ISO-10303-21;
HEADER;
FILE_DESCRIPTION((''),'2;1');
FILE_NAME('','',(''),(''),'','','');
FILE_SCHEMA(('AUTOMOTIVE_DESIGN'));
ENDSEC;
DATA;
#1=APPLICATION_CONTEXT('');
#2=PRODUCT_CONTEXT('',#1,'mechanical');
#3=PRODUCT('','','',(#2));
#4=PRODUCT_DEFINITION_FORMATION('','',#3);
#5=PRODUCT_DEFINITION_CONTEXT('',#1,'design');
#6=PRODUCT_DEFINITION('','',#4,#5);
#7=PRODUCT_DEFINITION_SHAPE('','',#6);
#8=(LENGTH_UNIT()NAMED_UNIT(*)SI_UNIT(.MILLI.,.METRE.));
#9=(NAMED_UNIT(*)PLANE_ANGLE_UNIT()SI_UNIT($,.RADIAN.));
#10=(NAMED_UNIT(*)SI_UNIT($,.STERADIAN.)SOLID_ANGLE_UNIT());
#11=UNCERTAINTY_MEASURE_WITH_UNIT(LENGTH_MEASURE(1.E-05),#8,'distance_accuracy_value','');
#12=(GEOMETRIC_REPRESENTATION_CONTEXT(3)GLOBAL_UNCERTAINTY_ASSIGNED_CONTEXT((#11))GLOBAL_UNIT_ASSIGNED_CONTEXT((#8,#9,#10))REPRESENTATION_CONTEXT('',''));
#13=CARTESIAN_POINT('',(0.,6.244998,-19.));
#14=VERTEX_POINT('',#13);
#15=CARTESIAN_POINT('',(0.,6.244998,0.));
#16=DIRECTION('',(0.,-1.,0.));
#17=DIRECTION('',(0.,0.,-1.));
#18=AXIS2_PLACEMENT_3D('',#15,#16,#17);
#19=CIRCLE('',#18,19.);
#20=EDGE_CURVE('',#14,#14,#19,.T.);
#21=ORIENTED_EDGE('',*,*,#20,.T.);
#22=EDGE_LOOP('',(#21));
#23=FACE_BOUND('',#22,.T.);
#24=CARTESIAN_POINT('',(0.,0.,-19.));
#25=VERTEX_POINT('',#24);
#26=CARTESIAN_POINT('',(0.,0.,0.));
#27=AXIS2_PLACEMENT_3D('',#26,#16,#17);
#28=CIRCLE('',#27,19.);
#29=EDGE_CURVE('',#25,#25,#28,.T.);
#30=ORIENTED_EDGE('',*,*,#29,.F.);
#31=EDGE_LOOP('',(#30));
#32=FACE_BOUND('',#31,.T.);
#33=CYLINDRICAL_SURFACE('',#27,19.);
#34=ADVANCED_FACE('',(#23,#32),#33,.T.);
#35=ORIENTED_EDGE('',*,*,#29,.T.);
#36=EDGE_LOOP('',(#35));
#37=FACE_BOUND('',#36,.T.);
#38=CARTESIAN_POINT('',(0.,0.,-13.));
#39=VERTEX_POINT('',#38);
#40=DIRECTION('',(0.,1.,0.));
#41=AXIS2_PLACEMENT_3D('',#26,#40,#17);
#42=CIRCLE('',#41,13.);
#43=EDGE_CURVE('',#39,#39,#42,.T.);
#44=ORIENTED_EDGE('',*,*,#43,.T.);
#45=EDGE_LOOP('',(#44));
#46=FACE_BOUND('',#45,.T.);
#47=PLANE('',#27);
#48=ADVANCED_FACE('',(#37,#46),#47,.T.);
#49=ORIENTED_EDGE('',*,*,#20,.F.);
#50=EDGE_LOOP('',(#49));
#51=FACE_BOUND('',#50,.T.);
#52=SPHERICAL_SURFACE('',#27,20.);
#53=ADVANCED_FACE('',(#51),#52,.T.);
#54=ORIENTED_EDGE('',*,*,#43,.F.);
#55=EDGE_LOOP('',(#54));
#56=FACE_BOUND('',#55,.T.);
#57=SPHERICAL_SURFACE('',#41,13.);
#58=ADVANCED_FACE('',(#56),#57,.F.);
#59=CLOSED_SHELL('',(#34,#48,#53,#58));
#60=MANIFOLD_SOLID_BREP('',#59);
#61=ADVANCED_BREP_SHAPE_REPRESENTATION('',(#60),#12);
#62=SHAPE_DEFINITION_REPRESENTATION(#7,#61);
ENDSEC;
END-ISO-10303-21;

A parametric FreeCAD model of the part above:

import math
import FreeCAD as App
import Part
import Sketcher

doc = App.newDocument("Part")
body = doc.addObject("PartDesign::Body", "Body")

sketch1 = body.newObject("Sketcher::SketchObject", "Sketch")
sketch1.AttachmentSupport = (doc.getObject("XZ_Plane"), [""])
sketch1.MapMode = "FlatFace"
sketch1.addGeometry(Part.LineSegment(App.Vector(-20, 0, 0), App.Vector(-13, 0, 0)), False)
sketch1.addGeometry(Part.ArcOfCircle(Part.Circle(App.Vector(0, 0, 0), App.Vector(0, 0, 1), 13), math.radians(180), math.radians(360)), False)
sketch1.addGeometry(Part.LineSegment(App.Vector(13, 0, 0), App.Vector(20, 0, 0)), False)
sketch1.addGeometry(Part.ArcOfCircle(Part.Circle(App.Vector(0, 0, 0), App.Vector(0, 0, 1), 20), math.radians(180), math.radians(360)), False)
sketch1.addConstraint(Sketcher.Constraint("Coincident", 0, 2, 1, 1))
sketch1.addConstraint(Sketcher.Constraint("Coincident", 1, 2, 2, 1))
sketch1.addConstraint(Sketcher.Constraint("Coincident", 2, 2, 3, 2))
sketch1.addConstraint(Sketcher.Constraint("Coincident", 3, 1, 0, 1))
sketch1.addConstraint(Sketcher.Constraint("Horizontal", 0))
sketch1.addConstraint(Sketcher.Constraint("Horizontal", 2))
sketch1.addConstraint(Sketcher.Constraint("Coincident", 1, 3, -1, 1))
sketch1.addConstraint(Sketcher.Constraint("Coincident", 3, 3, -1, 1))
sketch1.addConstraint(Sketcher.Constraint("PointOnObject", 0, 2, -1))
sketch1.addConstraint(Sketcher.Constraint("PointOnObject", 1, 2, -1))
sketch1.addConstraint(Sketcher.Constraint("Radius", 1, 13.0))
sketch1.addConstraint(Sketcher.Constraint("Radius", 3, 20.0))
revolution = body.newObject("PartDesign::Revolution", "Revolution")
revolution.Profile = sketch1
revolution.ReferenceAxis = (sketch1, ["H_Axis"])
revolution.Angle = 180

sketch2 = body.newObject("Sketcher::SketchObject", "Sketch001")
sketch2.AttachmentSupport = (doc.getObject("YZ_Plane"), [""])
sketch2.MapMode = "FlatFace"
sketch2.addGeometry(Part.LineSegment(App.Vector(6.2, 21.1, 0), App.Vector(0, 21.1, 0)), False)
sketch2.addGeometry(Part.LineSegment(App.Vector(0, 21.1, 0), App.Vector(0, 19, 0)), False)
sketch2.addGeometry(Part.LineSegment(App.Vector(0, 19, 0), App.Vector(6.2, 19, 0)), False)
sketch2.addGeometry(Part.LineSegment(App.Vector(6.2, 19, 0), App.Vector(6.2, 21.1, 0)), False)
sketch2.addConstraint(Sketcher.Constraint("Coincident", 0, 2, 1, 1))
sketch2.addConstraint(Sketcher.Constraint("Coincident", 1, 2, 2, 1))
sketch2.addConstraint(Sketcher.Constraint("Coincident", 2, 2, 3, 1))
sketch2.addConstraint(Sketcher.Constraint("Coincident", 3, 2, 0, 1))
sketch2.addConstraint(Sketcher.Constraint("Horizontal", 0))
sketch2.addConstraint(Sketcher.Constraint("Vertical", 1))
sketch2.addConstraint(Sketcher.Constraint("Horizontal", 2))
sketch2.addConstraint(Sketcher.Constraint("Vertical", 3))
sketch2.addConstraint(Sketcher.Constraint("PointOnObject", 0, 2, -2))
sketch2.addConstraint(Sketcher.Constraint("DistanceY", -1, 1, 1, 2, 19.0))
sketch2.addConstraint(Sketcher.Constraint("DistanceX", 0, 2, 0, 1, 6.25))
sketch2.addConstraint(Sketcher.Constraint("DistanceY", 1, 2, 1, 1, 2.135))
groove = body.newObject("PartDesign::Groove", "Groove")
groove.Profile = sketch2
groove.ReferenceAxis = (sketch2, ["H_Axis"])
groove.Angle = 360

doc.recompute()
